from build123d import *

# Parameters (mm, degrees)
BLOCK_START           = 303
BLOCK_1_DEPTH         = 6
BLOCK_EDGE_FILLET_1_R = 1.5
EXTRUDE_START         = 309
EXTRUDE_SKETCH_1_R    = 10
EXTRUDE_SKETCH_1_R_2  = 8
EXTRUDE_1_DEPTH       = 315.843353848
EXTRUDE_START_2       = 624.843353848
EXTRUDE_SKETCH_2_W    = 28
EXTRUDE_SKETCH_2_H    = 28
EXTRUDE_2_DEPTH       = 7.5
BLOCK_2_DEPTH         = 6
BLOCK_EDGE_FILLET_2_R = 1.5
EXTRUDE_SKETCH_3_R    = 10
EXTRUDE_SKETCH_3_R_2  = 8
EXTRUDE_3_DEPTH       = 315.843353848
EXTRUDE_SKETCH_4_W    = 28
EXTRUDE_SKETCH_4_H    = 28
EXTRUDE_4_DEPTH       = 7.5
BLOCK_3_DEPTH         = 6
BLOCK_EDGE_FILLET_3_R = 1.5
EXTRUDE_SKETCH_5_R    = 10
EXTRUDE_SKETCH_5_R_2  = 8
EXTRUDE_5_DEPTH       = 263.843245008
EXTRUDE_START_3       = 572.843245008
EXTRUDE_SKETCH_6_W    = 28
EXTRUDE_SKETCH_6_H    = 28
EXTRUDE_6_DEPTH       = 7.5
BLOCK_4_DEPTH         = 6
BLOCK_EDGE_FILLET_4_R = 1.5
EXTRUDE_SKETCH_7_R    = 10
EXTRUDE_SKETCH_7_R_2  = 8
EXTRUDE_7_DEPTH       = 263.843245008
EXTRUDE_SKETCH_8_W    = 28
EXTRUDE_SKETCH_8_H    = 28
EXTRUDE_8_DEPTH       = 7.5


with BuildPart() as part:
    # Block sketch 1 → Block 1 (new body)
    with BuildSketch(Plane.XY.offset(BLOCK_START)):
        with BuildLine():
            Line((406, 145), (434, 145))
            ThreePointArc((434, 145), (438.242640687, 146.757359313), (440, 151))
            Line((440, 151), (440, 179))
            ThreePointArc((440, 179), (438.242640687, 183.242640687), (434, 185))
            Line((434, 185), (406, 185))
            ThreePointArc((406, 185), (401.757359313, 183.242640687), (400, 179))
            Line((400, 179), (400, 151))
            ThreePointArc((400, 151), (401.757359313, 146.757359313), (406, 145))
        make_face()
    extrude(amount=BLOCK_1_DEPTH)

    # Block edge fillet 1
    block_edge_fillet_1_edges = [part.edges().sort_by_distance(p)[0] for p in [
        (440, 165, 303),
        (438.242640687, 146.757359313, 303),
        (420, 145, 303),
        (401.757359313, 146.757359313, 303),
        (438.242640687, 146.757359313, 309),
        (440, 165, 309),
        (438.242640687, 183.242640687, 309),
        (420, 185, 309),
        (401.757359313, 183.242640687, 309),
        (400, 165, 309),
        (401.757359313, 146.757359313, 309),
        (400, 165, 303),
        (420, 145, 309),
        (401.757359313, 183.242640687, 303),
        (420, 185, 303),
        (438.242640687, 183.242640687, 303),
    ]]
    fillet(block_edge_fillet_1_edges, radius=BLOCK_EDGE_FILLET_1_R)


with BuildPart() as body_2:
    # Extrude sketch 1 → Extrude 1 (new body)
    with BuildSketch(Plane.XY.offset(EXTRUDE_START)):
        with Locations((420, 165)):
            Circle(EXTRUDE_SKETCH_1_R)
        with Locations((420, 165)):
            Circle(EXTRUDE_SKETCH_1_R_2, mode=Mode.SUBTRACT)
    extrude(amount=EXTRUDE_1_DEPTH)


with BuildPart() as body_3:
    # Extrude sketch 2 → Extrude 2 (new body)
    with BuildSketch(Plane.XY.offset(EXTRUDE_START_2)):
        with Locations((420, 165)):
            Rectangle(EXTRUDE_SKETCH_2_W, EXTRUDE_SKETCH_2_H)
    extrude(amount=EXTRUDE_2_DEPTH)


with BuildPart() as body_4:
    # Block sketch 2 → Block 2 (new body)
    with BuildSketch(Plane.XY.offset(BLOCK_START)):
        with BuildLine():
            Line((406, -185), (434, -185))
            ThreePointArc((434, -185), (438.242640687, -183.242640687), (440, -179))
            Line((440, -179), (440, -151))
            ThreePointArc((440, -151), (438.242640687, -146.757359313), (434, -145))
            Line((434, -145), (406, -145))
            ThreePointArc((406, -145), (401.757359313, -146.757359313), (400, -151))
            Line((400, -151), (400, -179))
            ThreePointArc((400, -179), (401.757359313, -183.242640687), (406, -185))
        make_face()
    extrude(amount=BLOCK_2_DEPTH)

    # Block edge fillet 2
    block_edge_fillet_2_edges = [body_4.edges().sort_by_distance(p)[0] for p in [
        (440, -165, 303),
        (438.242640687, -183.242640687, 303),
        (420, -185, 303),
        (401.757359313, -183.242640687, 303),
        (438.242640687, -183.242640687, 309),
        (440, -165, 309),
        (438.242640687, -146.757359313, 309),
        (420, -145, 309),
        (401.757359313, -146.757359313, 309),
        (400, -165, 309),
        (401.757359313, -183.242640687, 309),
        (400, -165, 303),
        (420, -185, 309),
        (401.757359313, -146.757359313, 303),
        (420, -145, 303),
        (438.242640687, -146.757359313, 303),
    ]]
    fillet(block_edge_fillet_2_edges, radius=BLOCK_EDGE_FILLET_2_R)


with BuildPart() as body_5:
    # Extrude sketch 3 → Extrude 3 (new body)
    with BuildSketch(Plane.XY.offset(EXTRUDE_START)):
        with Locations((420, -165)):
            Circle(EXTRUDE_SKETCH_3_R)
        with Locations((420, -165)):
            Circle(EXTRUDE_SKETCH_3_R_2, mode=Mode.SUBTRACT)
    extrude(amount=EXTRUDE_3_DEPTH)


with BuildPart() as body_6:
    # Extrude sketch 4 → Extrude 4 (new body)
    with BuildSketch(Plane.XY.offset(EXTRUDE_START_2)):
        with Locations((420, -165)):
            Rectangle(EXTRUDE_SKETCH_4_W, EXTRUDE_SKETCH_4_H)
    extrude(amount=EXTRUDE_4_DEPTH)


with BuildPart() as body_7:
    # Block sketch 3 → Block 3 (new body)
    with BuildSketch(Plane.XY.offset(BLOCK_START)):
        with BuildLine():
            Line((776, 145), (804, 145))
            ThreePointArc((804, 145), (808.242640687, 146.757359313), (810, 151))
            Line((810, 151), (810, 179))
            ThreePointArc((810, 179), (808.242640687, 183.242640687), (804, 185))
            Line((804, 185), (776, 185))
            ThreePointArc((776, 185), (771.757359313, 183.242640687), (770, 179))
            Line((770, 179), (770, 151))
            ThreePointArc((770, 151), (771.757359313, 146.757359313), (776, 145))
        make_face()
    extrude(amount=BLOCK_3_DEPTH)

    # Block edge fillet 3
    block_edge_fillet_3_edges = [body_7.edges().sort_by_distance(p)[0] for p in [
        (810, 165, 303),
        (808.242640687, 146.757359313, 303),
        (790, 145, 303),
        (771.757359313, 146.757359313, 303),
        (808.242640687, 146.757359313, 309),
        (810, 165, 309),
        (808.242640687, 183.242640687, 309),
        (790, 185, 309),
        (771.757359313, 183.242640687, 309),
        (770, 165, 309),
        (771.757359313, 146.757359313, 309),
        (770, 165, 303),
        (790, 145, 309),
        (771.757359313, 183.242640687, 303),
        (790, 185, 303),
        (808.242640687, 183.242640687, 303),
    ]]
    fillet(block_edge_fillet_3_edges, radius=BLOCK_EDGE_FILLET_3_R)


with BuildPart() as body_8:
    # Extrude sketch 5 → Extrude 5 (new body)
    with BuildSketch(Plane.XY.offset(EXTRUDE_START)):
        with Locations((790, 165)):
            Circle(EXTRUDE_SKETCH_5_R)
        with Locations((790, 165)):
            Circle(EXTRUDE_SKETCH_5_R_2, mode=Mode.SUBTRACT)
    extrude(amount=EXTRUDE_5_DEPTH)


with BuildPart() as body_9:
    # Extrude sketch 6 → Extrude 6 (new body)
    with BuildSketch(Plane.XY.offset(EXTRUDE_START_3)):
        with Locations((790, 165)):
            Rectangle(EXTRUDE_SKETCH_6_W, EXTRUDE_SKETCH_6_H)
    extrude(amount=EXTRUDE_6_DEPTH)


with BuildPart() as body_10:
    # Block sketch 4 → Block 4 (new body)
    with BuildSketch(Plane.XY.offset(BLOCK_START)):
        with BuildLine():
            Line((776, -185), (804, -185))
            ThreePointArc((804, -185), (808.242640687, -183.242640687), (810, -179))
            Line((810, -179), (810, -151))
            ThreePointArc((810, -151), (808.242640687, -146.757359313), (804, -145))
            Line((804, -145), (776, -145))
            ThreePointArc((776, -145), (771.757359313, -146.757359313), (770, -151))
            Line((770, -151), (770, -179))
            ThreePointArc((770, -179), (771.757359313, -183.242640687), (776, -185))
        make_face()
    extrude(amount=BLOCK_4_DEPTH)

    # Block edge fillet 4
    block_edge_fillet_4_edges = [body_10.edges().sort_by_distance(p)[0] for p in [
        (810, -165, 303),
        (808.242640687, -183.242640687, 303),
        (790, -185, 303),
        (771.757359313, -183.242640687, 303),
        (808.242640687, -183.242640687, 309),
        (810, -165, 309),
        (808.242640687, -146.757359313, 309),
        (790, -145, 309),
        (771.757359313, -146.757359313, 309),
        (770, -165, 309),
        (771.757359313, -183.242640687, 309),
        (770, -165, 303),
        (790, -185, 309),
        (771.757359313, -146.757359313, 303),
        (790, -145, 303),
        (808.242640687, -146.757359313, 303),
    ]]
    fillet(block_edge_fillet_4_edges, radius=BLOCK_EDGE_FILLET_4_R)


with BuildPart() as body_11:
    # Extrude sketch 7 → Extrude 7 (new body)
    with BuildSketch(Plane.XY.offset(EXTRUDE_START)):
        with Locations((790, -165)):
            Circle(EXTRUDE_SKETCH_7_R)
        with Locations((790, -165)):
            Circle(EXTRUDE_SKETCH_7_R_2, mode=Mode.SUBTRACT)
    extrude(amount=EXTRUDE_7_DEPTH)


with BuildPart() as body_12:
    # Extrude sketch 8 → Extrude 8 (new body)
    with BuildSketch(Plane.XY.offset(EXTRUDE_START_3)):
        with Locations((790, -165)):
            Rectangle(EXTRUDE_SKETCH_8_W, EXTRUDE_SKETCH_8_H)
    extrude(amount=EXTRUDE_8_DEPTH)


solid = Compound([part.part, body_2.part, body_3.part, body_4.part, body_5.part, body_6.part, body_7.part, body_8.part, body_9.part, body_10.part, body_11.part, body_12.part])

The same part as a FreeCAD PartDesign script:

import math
import FreeCAD as App
import Part
import Sketcher

V = App.Vector
Q = App.Units.Quantity


def edges_at(feature, points):
    """Names of the edges that pass closest to the given points."""
    edges = feature.Shape.Edges
    near = lambda p: min(range(len(edges)), key=lambda i: edges[i].distToShape(Part.Vertex(*p))[0])
    return sorted({f"Edge{near(p) + 1}" for p in points})

doc = App.newDocument("Part")
body = doc.addObject("PartDesign::Body", "Body")

sketch1 = body.newObject("Sketcher::SketchObject", "Sketch")
sketch1.AttachmentSupport = (doc.getObject("XY_Plane"), [""])
sketch1.MapMode = "FlatFace"
sketch1.AttachmentOffset = App.Placement(V(0, 0, 303), App.Rotation())
sketch1.addGeometry(Part.LineSegment(V(406, 145, 0), V(434, 145, 0)), False)
sketch1.addGeometry(Part.ArcOfCircle(Part.Circle(V(434, 151, 0), V(0, 0, 1), 6), math.radians(-90), math.radians(0)), False)
sketch1.addGeometry(Part.LineSegment(V(440, 151, 0), V(440, 179, 0)), False)
sketch1.addGeometry(Part.ArcOfCircle(Part.Circle(V(434, 179, 0), V(0, 0, 1), 6), math.radians(0), math.radians(90)), False)
sketch1.addGeometry(Part.LineSegment(V(434, 185, 0), V(406, 185, 0)), False)
sketch1.addGeometry(Part.ArcOfCircle(Part.Circle(V(406, 179, 0), V(0, 0, 1), 6), math.radians(90), math.radians(180)), False)
sketch1.addGeometry(Part.LineSegment(V(400, 179, 0), V(400, 151, 0)), False)
sketch1.addGeometry(Part.ArcOfCircle(Part.Circle(V(406, 151, 0), V(0, 0, 1), 6), math.radians(180), math.radians(270)), False)
sketch1.addConstraint(Sketcher.Constraint("Tangent", 0, 2, 1, 1))
sketch1.addConstraint(Sketcher.Constraint("Tangent", 1, 2, 2, 1))
sketch1.addConstraint(Sketcher.Constraint("Tangent", 2, 2, 3, 1))
sketch1.addConstraint(Sketcher.Constraint("Tangent", 3, 2, 4, 1))
sketch1.addConstraint(Sketcher.Constraint("Tangent", 4, 2, 5, 1))
sketch1.addConstraint(Sketcher.Constraint("Tangent", 5, 2, 6, 1))
sketch1.addConstraint(Sketcher.Constraint("Tangent", 6, 2, 7, 1))
sketch1.addConstraint(Sketcher.Constraint("Tangent", 7, 2, 0, 1))
sketch1.addConstraint(Sketcher.Constraint("Horizontal", 0))
sketch1.addConstraint(Sketcher.Constraint("Vertical", 2))
sketch1.addConstraint(Sketcher.Constraint("Horizontal", 4))
sketch1.addConstraint(Sketcher.Constraint("Vertical", 6))
sketch1.addConstraint(Sketcher.Constraint("Equal", 1, 3))
sketch1.addConstraint(Sketcher.Constraint("Equal", 3, 5))
sketch1.addConstraint(Sketcher.Constraint("Equal", 5, 7))
sketch1.addConstraint(Sketcher.Constraint("Equal", 4, 2))
sketch1.addConstraint(Sketcher.Constraint("Radius", 1, Q("6 mm")))
sketch1.addConstraint(Sketcher.Constraint("DistanceX", 0, 1, 0, 2, Q("28 mm")))
sketch1.addConstraint(Sketcher.Constraint("DistanceX", -1, 1, 1, 3, Q("434 mm")))
sketch1.addConstraint(Sketcher.Constraint("DistanceY", -1, 1, 1, 3, Q("151 mm")))
pad1 = body.newObject("PartDesign::Pad", "Pad")
pad1.Profile = sketch1
pad1.Length = 6
doc.recompute()

fillet = body.newObject("PartDesign::Fillet", "Fillet")
fillet.Base = (pad1, edges_at(pad1, [
    (440, 165, 303),
    (438.243, 146.757, 303),
    (420, 145, 303),
    (401.757, 146.757, 303),
    (438.243, 146.757, 309),
    (440, 165, 309),
    (438.243, 183.243, 309),
    (420, 185, 309),
    (401.757, 183.243, 309),
    (400, 165, 309),
    (401.757, 146.757, 309),
    (400, 165, 303),
    (420, 145, 309),
    (401.757, 183.243, 303),
    (420, 185, 303),
    (438.243, 183.243, 303),
]))
fillet.Radius = 1.5
body2 = doc.addObject("PartDesign::Body", "Body001")

sketch2 = body2.newObject("Sketcher::SketchObject", "Sketch001")
sketch2.AttachmentSupport = (doc.getObject("XY_Plane001"), [""])
sketch2.MapMode = "FlatFace"
sketch2.AttachmentOffset = App.Placement(V(0, 0, 309), App.Rotation())
sketch2.addGeometry(Part.Circle(V(420, 165, 0), V(0, 0, 1), 10), False)
sketch2.addGeometry(Part.Circle(V(420, 165, 0), V(0, 0, 1), 8), False)
sketch2.addConstraint(Sketcher.Constraint("Coincident", 1, 3, 0, 3))
sketch2.addConstraint(Sketcher.Constraint("Diameter", 0, Q("20 mm")))
sketch2.addConstraint(Sketcher.Constraint("Diameter", 1, Q("16 mm")))
sketch2.addConstraint(Sketcher.Constraint("DistanceX", -1, 1, 0, 3, Q("420 mm")))
sketch2.addConstraint(Sketcher.Constraint("DistanceY", -1, 1, 0, 3, Q("165 mm")))
pad2 = body2.newObject("PartDesign::Pad", "Pad001")
pad2.Profile = sketch2
pad2.Length = 315.843354
body3 = doc.addObject("PartDesign::Body", "Body002")

sketch3 = body3.newObject("Sketcher::SketchObject", "Sketch002")
sketch3.AttachmentSupport = (doc.getObject("XY_Plane002"), [""])
sketch3.MapMode = "FlatFace"
sketch3.AttachmentOffset = App.Placement(V(0, 0, 624.843354), App.Rotation())
sketch3.addGeometry(Part.LineSegment(V(406, 179, 0), V(406, 151, 0)), False)
sketch3.addGeometry(Part.LineSegment(V(406, 151, 0), V(434, 151, 0)), False)
sketch3.addGeometry(Part.LineSegment(V(434, 151, 0), V(434, 179, 0)), False)
sketch3.addGeometry(Part.LineSegment(V(434, 179, 0), V(406, 179, 0)), False)
sketch3.addConstraint(Sketcher.Constraint("Coincident", 0, 2, 1, 1))
sketch3.addConstraint(Sketcher.Constraint("Coincident", 1, 2, 2, 1))
sketch3.addConstraint(Sketcher.Constraint("Coincident", 2, 2, 3, 1))
sketch3.addConstraint(Sketcher.Constraint("Coincident", 3, 2, 0, 1))
sketch3.addConstraint(Sketcher.Constraint("Vertical", 0))
sketch3.addConstraint(Sketcher.Constraint("Horizontal", 1))
sketch3.addConstraint(Sketcher.Constraint("Vertical", 2))
sketch3.addConstraint(Sketcher.Constraint("Horizontal", 3))
sketch3.addConstraint(Sketcher.Constraint("Equal", 3, 0))
sketch3.addConstraint(Sketcher.Constraint("DistanceX", 1, 1, 1, 2, Q("28 mm")))
sketch3.addConstraint(Sketcher.Constraint("DistanceX", -1, 1, 0, 2, Q("406 mm")))
sketch3.addConstraint(Sketcher.Constraint("DistanceY", -1, 1, 0, 2, Q("151 mm")))
pad3 = body3.newObject("PartDesign::Pad", "Pad002")
pad3.Profile = sketch3
pad3.Length = 7.5
body4 = doc.addObject("PartDesign::Body", "Body003")

sketch4 = body4.newObject("Sketcher::SketchObject", "Sketch003")
sketch4.AttachmentSupport = (doc.getObject("XY_Plane003"), [""])
sketch4.MapMode = "FlatFace"
sketch4.AttachmentOffset = App.Placement(V(0, 0, 303), App.Rotation())
sketch4.addGeometry(Part.LineSegment(V(406, -185, 0), V(434, -185, 0)), False)
sketch4.addGeometry(Part.ArcOfCircle(Part.Circle(V(434, -179, 0), V(0, 0, 1), 6), math.radians(-90), math.radians(0)), False)
sketch4.addGeometry(Part.LineSegment(V(440, -179, 0), V(440, -151, 0)), False)
sketch4.addGeometry(Part.ArcOfCircle(Part.Circle(V(434, -151, 0), V(0, 0, 1), 6), math.radians(0), math.radians(90)), False)
sketch4.addGeometry(Part.LineSegment(V(434, -145, 0), V(406, -145, 0)), False)
sketch4.addGeometry(Part.ArcOfCircle(Part.Circle(V(406, -151, 0), V(0, 0, 1), 6), math.radians(90), math.radians(180)), False)
sketch4.addGeometry(Part.LineSegment(V(400, -151, 0), V(400, -179, 0)), False)
sketch4.addGeometry(Part.ArcOfCircle(Part.Circle(V(406, -179, 0), V(0, 0, 1), 6), math.radians(180), math.radians(270)), False)
sketch4.addConstraint(Sketcher.Constraint("Tangent", 0, 2, 1, 1))
sketch4.addConstraint(Sketcher.Constraint("Tangent", 1, 2, 2, 1))
sketch4.addConstraint(Sketcher.Constraint("Tangent", 2, 2, 3, 1))
sketch4.addConstraint(Sketcher.Constraint("Tangent", 3, 2, 4, 1))
sketch4.addConstraint(Sketcher.Constraint("Tangent", 4, 2, 5, 1))
sketch4.addConstraint(Sketcher.Constraint("Tangent", 5, 2, 6, 1))
sketch4.addConstraint(Sketcher.Constraint("Tangent", 6, 2, 7, 1))
sketch4.addConstraint(Sketcher.Constraint("Tangent", 7, 2, 0, 1))
sketch4.addConstraint(Sketcher.Constraint("Horizontal", 0))
sketch4.addConstraint(Sketcher.Constraint("Vertical", 2))
sketch4.addConstraint(Sketcher.Constraint("Horizontal", 4))
sketch4.addConstraint(Sketcher.Constraint("Vertical", 6))
sketch4.addConstraint(Sketcher.Constraint("Equal", 1, 3))
sketch4.addConstraint(Sketcher.Constraint("Equal", 3, 5))
sketch4.addConstraint(Sketcher.Constraint("Equal", 5, 7))
sketch4.addConstraint(Sketcher.Constraint("Equal", 4, 2))
sketch4.addConstraint(Sketcher.Constraint("Radius", 1, Q("6 mm")))
sketch4.addConstraint(Sketcher.Constraint("DistanceX", 0, 1, 0, 2, Q("28 mm")))
sketch4.addConstraint(Sketcher.Constraint("DistanceX", -1, 1, 1, 3, Q("434 mm")))
sketch4.addConstraint(Sketcher.Constraint("DistanceY", 1, 3, -1, 1, Q("179 mm")))
pad4 = body4.newObject("PartDesign::Pad", "Pad003")
pad4.Profile = sketch4
pad4.Length = 6
doc.recompute()

fillet2 = body4.newObject("PartDesign::Fillet", "Fillet001")
fillet2.Base = (pad4, edges_at(pad4, [
    (440, -165, 303),
    (438.243, -183.243, 303),
    (420, -185, 303),
    (401.757, -183.243, 303),
    (438.243, -183.243, 309),
    (440, -165, 309),
    (438.243, -146.757, 309),
    (420, -145, 309),
    (401.757, -146.757, 309),
    (400, -165, 309),
    (401.757, -183.243, 309),
    (400, -165, 303),
    (420, -185, 309),
    (401.757, -146.757, 303),
    (420, -145, 303),
    (438.243, -146.757, 303),
]))
fillet2.Radius = 1.5
body5 = doc.addObject("PartDesign::Body", "Body004")

sketch5 = body5.newObject("Sketcher::SketchObject", "Sketch004")
sketch5.AttachmentSupport = (doc.getObject("XY_Plane004"), [""])
sketch5.MapMode = "FlatFace"
sketch5.AttachmentOffset = App.Placement(V(0, 0, 309), App.Rotation())
sketch5.addGeometry(Part.Circle(V(420, -165, 0), V(0, 0, 1), 10), False)
sketch5.addGeometry(Part.Circle(V(420, -165, 0), V(0, 0, 1), 8), False)
sketch5.addConstraint(Sketcher.Constraint("Coincident", 1, 3, 0, 3))
sketch5.addConstraint(Sketcher.Constraint("Diameter", 0, Q("20 mm")))
sketch5.addConstraint(Sketcher.Constraint("Diameter", 1, Q("16 mm")))
sketch5.addConstraint(Sketcher.Constraint("DistanceX", -1, 1, 0, 3, Q("420 mm")))
sketch5.addConstraint(Sketcher.Constraint("DistanceY", 0, 3, -1, 1, Q("165 mm")))
pad5 = body5.newObject("PartDesign::Pad", "Pad004")
pad5.Profile = sketch5
pad5.Length = 315.843354
body6 = doc.addObject("PartDesign::Body", "Body005")

sketch6 = body6.newObject("Sketcher::SketchObject", "Sketch005")
sketch6.AttachmentSupport = (doc.getObject("XY_Plane005"), [""])
sketch6.MapMode = "FlatFace"
sketch6.AttachmentOffset = App.Placement(V(0, 0, 624.843354), App.Rotation())
sketch6.addGeometry(Part.LineSegment(V(406, -151, 0), V(406, -179, 0)), False)
sketch6.addGeometry(Part.LineSegment(V(406, -179, 0), V(434, -179, 0)), False)
sketch6.addGeometry(Part.LineSegment(V(434, -179, 0), V(434, -151, 0)), False)
sketch6.addGeometry(Part.LineSegment(V(434, -151, 0), V(406, -151, 0)), False)
sketch6.addConstraint(Sketcher.Constraint("Coincident", 0, 2, 1, 1))
sketch6.addConstraint(Sketcher.Constraint("Coincident", 1, 2, 2, 1))
sketch6.addConstraint(Sketcher.Constraint("Coincident", 2, 2, 3, 1))
sketch6.addConstraint(Sketcher.Constraint("Coincident", 3, 2, 0, 1))
sketch6.addConstraint(Sketcher.Constraint("Vertical", 0))
sketch6.addConstraint(Sketcher.Constraint("Horizontal", 1))
sketch6.addConstraint(Sketcher.Constraint("Vertical", 2))
sketch6.addConstraint(Sketcher.Constraint("Horizontal", 3))
sketch6.addConstraint(Sketcher.Constraint("Equal", 3, 0))
sketch6.addConstraint(Sketcher.Constraint("DistanceX", 1, 1, 1, 2, Q("28 mm")))
sketch6.addConstraint(Sketcher.Constraint("DistanceX", -1, 1, 0, 2, Q("406 mm")))
sketch6.addConstraint(Sketcher.Constraint("DistanceY", 0, 2, -1, 1, Q("179 mm")))
pad6 = body6.newObject("PartDesign::Pad", "Pad005")
pad6.Profile = sketch6
pad6.Length = 7.5
body7 = doc.addObject("PartDesign::Body", "Body006")

sketch7 = body7.newObject("Sketcher::SketchObject", "Sketch006")
sketch7.AttachmentSupport = (doc.getObject("XY_Plane006"), [""])
sketch7.MapMode = "FlatFace"
sketch7.AttachmentOffset = App.Placement(V(0, 0, 303), App.Rotation())
sketch7.addGeometry(Part.LineSegment(V(776, 145, 0), V(804, 145, 0)), False)
sketch7.addGeometry(Part.ArcOfCircle(Part.Circle(V(804, 151, 0), V(0, 0, 1), 6), math.radians(-90), math.radians(0)), False)
sketch7.addGeometry(Part.LineSegment(V(810, 151, 0), V(810, 179, 0)), False)
sketch7.addGeometry(Part.ArcOfCircle(Part.Circle(V(804, 179, 0), V(0, 0, 1), 6), math.radians(0), math.radians(90)), False)
sketch7.addGeometry(Part.LineSegment(V(804, 185, 0), V(776, 185, 0)), False)
sketch7.addGeometry(Part.ArcOfCircle(Part.Circle(V(776, 179, 0), V(0, 0, 1), 6), math.radians(90), math.radians(180)), False)
sketch7.addGeometry(Part.LineSegment(V(770, 179, 0), V(770, 151, 0)), False)
sketch7.addGeometry(Part.ArcOfCircle(Part.Circle(V(776, 151, 0), V(0, 0, 1), 6), math.radians(180), math.radians(270)), False)
sketch7.addConstraint(Sketcher.Constraint("Tangent", 0, 2, 1, 1))
sketch7.addConstraint(Sketcher.Constraint("Tangent", 1, 2, 2, 1))
sketch7.addConstraint(Sketcher.Constraint("Tangent", 2, 2, 3, 1))
sketch7.addConstraint(Sketcher.Constraint("Tangent", 3, 2, 4, 1))
sketch7.addConstraint(Sketcher.Constraint("Tangent", 4, 2, 5, 1))
sketch7.addConstraint(Sketcher.Constraint("Tangent", 5, 2, 6, 1))
sketch7.addConstraint(Sketcher.Constraint("Tangent", 6, 2, 7, 1))
sketch7.addConstraint(Sketcher.Constraint("Tangent", 7, 2, 0, 1))
sketch7.addConstraint(Sketcher.Constraint("Horizontal", 0))
sketch7.addConstraint(Sketcher.Constraint("Vertical", 2))
sketch7.addConstraint(Sketcher.Constraint("Horizontal", 4))
sketch7.addConstraint(Sketcher.Constraint("Vertical", 6))
sketch7.addConstraint(Sketcher.Constraint("Equal", 1, 3))
sketch7.addConstraint(Sketcher.Constraint("Equal", 3, 5))
sketch7.addConstraint(Sketcher.Constraint("Equal", 5, 7))
sketch7.addConstraint(Sketcher.Constraint("Equal", 4, 2))
sketch7.addConstraint(Sketcher.Constraint("Radius", 1, Q("6 mm")))
sketch7.addConstraint(Sketcher.Constraint("DistanceX", 0, 1, 0, 2, Q("28 mm")))
sketch7.addConstraint(Sketcher.Constraint("DistanceX", -1, 1, 1, 3, Q("804 mm")))
sketch7.addConstraint(Sketcher.Constraint("DistanceY", -1, 1, 1, 3, Q("151 mm")))
pad7 = body7.newObject("PartDesign::Pad", "Pad006")
pad7.Profile = sketch7
pad7.Length = 6
doc.recompute()

fillet3 = body7.newObject("PartDesign::Fillet", "Fillet002")
fillet3.Base = (pad7, edges_at(pad7, [
    (810, 165, 303),
    (808.243, 146.757, 303),
    (790, 145, 303),
    (771.757, 146.757, 303),
    (808.243, 146.757, 309),
    (810, 165, 309),
    (808.243, 183.243, 309),
    (790, 185, 309),
    (771.757, 183.243, 309),
    (770, 165, 309),
    (771.757, 146.757, 309),
    (770, 165, 303),
    (790, 145, 309),
    (771.757, 183.243, 303),
    (790, 185, 303),
    (808.243, 183.243, 303),
]))
fillet3.Radius = 1.5
body8 = doc.addObject("PartDesign::Body", "Body007")

sketch8 = body8.newObject("Sketcher::SketchObject", "Sketch007")
sketch8.AttachmentSupport = (doc.getObject("XY_Plane007"), [""])
sketch8.MapMode = "FlatFace"
sketch8.AttachmentOffset = App.Placement(V(0, 0, 309), App.Rotation())
sketch8.addGeometry(Part.Circle(V(790, 165, 0), V(0, 0, 1), 10), False)
sketch8.addGeometry(Part.Circle(V(790, 165, 0), V(0, 0, 1), 8), False)
sketch8.addConstraint(Sketcher.Constraint("Coincident", 1, 3, 0, 3))
sketch8.addConstraint(Sketcher.Constraint("Diameter", 0, Q("20 mm")))
sketch8.addConstraint(Sketcher.Constraint("Diameter", 1, Q("16 mm")))
sketch8.addConstraint(Sketcher.Constraint("DistanceX", -1, 1, 0, 3, Q("790 mm")))
sketch8.addConstraint(Sketcher.Constraint("DistanceY", -1, 1, 0, 3, Q("165 mm")))
pad8 = body8.newObject("PartDesign::Pad", "Pad007")
pad8.Profile = sketch8
pad8.Length = 263.843245
body9 = doc.addObject("PartDesign::Body", "Body008")

sketch9 = body9.newObject("Sketcher::SketchObject", "Sketch008")
sketch9.AttachmentSupport = (doc.getObject("XY_Plane008"), [""])
sketch9.MapMode = "FlatFace"
sketch9.AttachmentOffset = App.Placement(V(0, 0, 572.843245), App.Rotation())
sketch9.addGeometry(Part.LineSegment(V(776, 179, 0), V(776, 151, 0)), False)
sketch9.addGeometry(Part.LineSegment(V(776, 151, 0), V(804, 151, 0)), False)
sketch9.addGeometry(Part.LineSegment(V(804, 151, 0), V(804, 179, 0)), False)
sketch9.addGeometry(Part.LineSegment(V(804, 179, 0), V(776, 179, 0)), False)
sketch9.addConstraint(Sketcher.Constraint("Coincident", 0, 2, 1, 1))
sketch9.addConstraint(Sketcher.Constraint("Coincident", 1, 2, 2, 1))
sketch9.addConstraint(Sketcher.Constraint("Coincident", 2, 2, 3, 1))
sketch9.addConstraint(Sketcher.Constraint("Coincident", 3, 2, 0, 1))
sketch9.addConstraint(Sketcher.Constraint("Vertical", 0))
sketch9.addConstraint(Sketcher.Constraint("Horizontal", 1))
sketch9.addConstraint(Sketcher.Constraint("Vertical", 2))
sketch9.addConstraint(Sketcher.Constraint("Horizontal", 3))
sketch9.addConstraint(Sketcher.Constraint("Equal", 3, 0))
sketch9.addConstraint(Sketcher.Constraint("DistanceX", 1, 1, 1, 2, Q("28 mm")))
sketch9.addConstraint(Sketcher.Constraint("DistanceX", -1, 1, 0, 2, Q("776 mm")))
sketch9.addConstraint(Sketcher.Constraint("DistanceY", -1, 1, 0, 2, Q("151 mm")))
pad9 = body9.newObject("PartDesign::Pad", "Pad008")
pad9.Profile = sketch9
pad9.Length = 7.5
body10 = doc.addObject("PartDesign::Body", "Body009")

sketch10 = body10.newObject("Sketcher::SketchObject", "Sketch009")
sketch10.AttachmentSupport = (doc.getObject("XY_Plane009"), [""])
sketch10.MapMode = "FlatFace"
sketch10.AttachmentOffset = App.Placement(V(0, 0, 303), App.Rotation())
sketch10.addGeometry(Part.LineSegment(V(776, -185, 0), V(804, -185, 0)), False)
sketch10.addGeometry(Part.ArcOfCircle(Part.Circle(V(804, -179, 0), V(0, 0, 1), 6), math.radians(-90), math.radians(0)), False)
sketch10.addGeometry(Part.LineSegment(V(810, -179, 0), V(810, -151, 0)), False)
sketch10.addGeometry(Part.ArcOfCircle(Part.Circle(V(804, -151, 0), V(0, 0, 1), 6), math.radians(0), math.radians(90)), False)
sketch10.addGeometry(Part.LineSegment(V(804, -145, 0), V(776, -145, 0)), False)
sketch10.addGeometry(Part.ArcOfCircle(Part.Circle(V(776, -151, 0), V(0, 0, 1), 6), math.radians(90), math.radians(180)), False)
sketch10.addGeometry(Part.LineSegment(V(770, -151, 0), V(770, -179, 0)), False)
sketch10.addGeometry(Part.ArcOfCircle(Part.Circle(V(776, -179, 0), V(0, 0, 1), 6), math.radians(180), math.radians(270)), False)
sketch10.addConstraint(Sketcher.Constraint("Tangent", 0, 2, 1, 1))
sketch10.addConstraint(Sketcher.Constraint("Tangent", 1, 2, 2, 1))
sketch10.addConstraint(Sketcher.Constraint("Tangent", 2, 2, 3, 1))
sketch10.addConstraint(Sketcher.Constraint("Tangent", 3, 2, 4, 1))
sketch10.addConstraint(Sketcher.Constraint("Tangent", 4, 2, 5, 1))
sketch10.addConstraint(Sketcher.Constraint("Tangent", 5, 2, 6, 1))
sketch10.addConstraint(Sketcher.Constraint("Tangent", 6, 2, 7, 1))
sketch10.addConstraint(Sketcher.Constraint("Tangent", 7, 2, 0, 1))
sketch10.addConstraint(Sketcher.Constraint("Horizontal", 0))
sketch10.addConstraint(Sketcher.Constraint("Vertical", 2))
sketch10.addConstraint(Sketcher.Constraint("Horizontal", 4))
sketch10.addConstraint(Sketcher.Constraint("Vertical", 6))
sketch10.addConstraint(Sketcher.Constraint("Equal", 1, 3))
sketch10.addConstraint(Sketcher.Constraint("Equal", 3, 5))
sketch10.addConstraint(Sketcher.Constraint("Equal", 5, 7))
sketch10.addConstraint(Sketcher.Constraint("Equal", 4, 2))
sketch10.addConstraint(Sketcher.Constraint("Radius", 1, Q("6 mm")))
sketch10.addConstraint(Sketcher.Constraint("DistanceX", 0, 1, 0, 2, Q("28 mm")))
sketch10.addConstraint(Sketcher.Constraint("DistanceX", -1, 1, 1, 3, Q("804 mm")))
sketch10.addConstraint(Sketcher.Constraint("DistanceY", 1, 3, -1, 1, Q("179 mm")))
pad10 = body10.newObject("PartDesign::Pad", "Pad009")
pad10.Profile = sketch10
pad10.Length = 6
doc.recompute()

fillet4 = body10.newObject("PartDesign::Fillet", "Fillet003")
fillet4.Base = (pad10, edges_at(pad10, [
    (810, -165, 303),
    (808.243, -183.243, 303),
    (790, -185, 303),
    (771.757, -183.243, 303),
    (808.243, -183.243, 309),
    (810, -165, 309),
    (808.243, -146.757, 309),
    (790, -145, 309),
    (771.757, -146.757, 309),
    (770, -165, 309),
    (771.757, -183.243, 309),
    (770, -165, 303),
    (790, -185, 309),
    (771.757, -146.757, 303),
    (790, -145, 303),
    (808.243, -146.757, 303),
]))
fillet4.Radius = 1.5
body11 = doc.addObject("PartDesign::Body", "Body010")

sketch11 = body11.newObject("Sketcher::SketchObject", "Sketch010")
sketch11.AttachmentSupport = (doc.getObject("XY_Plane010"), [""])
sketch11.MapMode = "FlatFace"
sketch11.AttachmentOffset = App.Placement(V(0, 0, 309), App.Rotation())
sketch11.addGeometry(Part.Circle(V(790, -165, 0), V(0, 0, 1), 10), False)
sketch11.addGeometry(Part.Circle(V(790, -165, 0), V(0, 0, 1), 8), False)
sketch11.addConstraint(Sketcher.Constraint("Coincident", 1, 3, 0, 3))
sketch11.addConstraint(Sketcher.Constraint("Diameter", 0, Q("20 mm")))
sketch11.addConstraint(Sketcher.Constraint("Diameter", 1, Q("16 mm")))
sketch11.addConstraint(Sketcher.Constraint("DistanceX", -1, 1, 0, 3, Q("790 mm")))
sketch11.addConstraint(Sketcher.Constraint("DistanceY", 0, 3, -1, 1, Q("165 mm")))
pad11 = body11.newObject("PartDesign::Pad", "Pad010")
pad11.Profile = sketch11
pad11.Length = 263.843245
body12 = doc.addObject("PartDesign::Body", "Body011")

sketch12 = body12.newObject("Sketcher::SketchObject", "Sketch011")
sketch12.AttachmentSupport = (doc.getObject("XY_Plane011"), [""])
sketch12.MapMode = "FlatFace"
sketch12.AttachmentOffset = App.Placement(V(0, 0, 572.843245), App.Rotation())
sketch12.addGeometry(Part.LineSegment(V(776, -151, 0), V(776, -179, 0)), False)
sketch12.addGeometry(Part.LineSegment(V(776, -179, 0), V(804, -179, 0)), False)
sketch12.addGeometry(Part.LineSegment(V(804, -179, 0), V(804, -151, 0)), False)
sketch12.addGeometry(Part.LineSegment(V(804, -151, 0), V(776, -151, 0)), False)
sketch12.addConstraint(Sketcher.Constraint("Coincident", 0, 2, 1, 1))
sketch12.addConstraint(Sketcher.Constraint("Coincident", 1, 2, 2, 1))
sketch12.addConstraint(Sketcher.Constraint("Coincident", 2, 2, 3, 1))
sketch12.addConstraint(Sketcher.Constraint("Coincident", 3, 2, 0, 1))
sketch12.addConstraint(Sketcher.Constraint("Vertical", 0))
sketch12.addConstraint(Sketcher.Constraint("Horizontal", 1))
sketch12.addConstraint(Sketcher.Constraint("Vertical", 2))
sketch12.addConstraint(Sketcher.Constraint("Horizontal", 3))
sketch12.addConstraint(Sketcher.Constraint("Equal", 3, 0))
sketch12.addConstraint(Sketcher.Constraint("DistanceX", 1, 1, 1, 2, Q("28 mm")))
sketch12.addConstraint(Sketcher.Constraint("DistanceX", -1, 1, 0, 2, Q("776 mm")))
sketch12.addConstraint(Sketcher.Constraint("DistanceY", 0, 2, -1, 1, Q("179 mm")))
pad12 = body12.newObject("PartDesign::Pad", "Pad011")
pad12.Profile = sketch12
pad12.Length = 7.5

doc.recompute()
